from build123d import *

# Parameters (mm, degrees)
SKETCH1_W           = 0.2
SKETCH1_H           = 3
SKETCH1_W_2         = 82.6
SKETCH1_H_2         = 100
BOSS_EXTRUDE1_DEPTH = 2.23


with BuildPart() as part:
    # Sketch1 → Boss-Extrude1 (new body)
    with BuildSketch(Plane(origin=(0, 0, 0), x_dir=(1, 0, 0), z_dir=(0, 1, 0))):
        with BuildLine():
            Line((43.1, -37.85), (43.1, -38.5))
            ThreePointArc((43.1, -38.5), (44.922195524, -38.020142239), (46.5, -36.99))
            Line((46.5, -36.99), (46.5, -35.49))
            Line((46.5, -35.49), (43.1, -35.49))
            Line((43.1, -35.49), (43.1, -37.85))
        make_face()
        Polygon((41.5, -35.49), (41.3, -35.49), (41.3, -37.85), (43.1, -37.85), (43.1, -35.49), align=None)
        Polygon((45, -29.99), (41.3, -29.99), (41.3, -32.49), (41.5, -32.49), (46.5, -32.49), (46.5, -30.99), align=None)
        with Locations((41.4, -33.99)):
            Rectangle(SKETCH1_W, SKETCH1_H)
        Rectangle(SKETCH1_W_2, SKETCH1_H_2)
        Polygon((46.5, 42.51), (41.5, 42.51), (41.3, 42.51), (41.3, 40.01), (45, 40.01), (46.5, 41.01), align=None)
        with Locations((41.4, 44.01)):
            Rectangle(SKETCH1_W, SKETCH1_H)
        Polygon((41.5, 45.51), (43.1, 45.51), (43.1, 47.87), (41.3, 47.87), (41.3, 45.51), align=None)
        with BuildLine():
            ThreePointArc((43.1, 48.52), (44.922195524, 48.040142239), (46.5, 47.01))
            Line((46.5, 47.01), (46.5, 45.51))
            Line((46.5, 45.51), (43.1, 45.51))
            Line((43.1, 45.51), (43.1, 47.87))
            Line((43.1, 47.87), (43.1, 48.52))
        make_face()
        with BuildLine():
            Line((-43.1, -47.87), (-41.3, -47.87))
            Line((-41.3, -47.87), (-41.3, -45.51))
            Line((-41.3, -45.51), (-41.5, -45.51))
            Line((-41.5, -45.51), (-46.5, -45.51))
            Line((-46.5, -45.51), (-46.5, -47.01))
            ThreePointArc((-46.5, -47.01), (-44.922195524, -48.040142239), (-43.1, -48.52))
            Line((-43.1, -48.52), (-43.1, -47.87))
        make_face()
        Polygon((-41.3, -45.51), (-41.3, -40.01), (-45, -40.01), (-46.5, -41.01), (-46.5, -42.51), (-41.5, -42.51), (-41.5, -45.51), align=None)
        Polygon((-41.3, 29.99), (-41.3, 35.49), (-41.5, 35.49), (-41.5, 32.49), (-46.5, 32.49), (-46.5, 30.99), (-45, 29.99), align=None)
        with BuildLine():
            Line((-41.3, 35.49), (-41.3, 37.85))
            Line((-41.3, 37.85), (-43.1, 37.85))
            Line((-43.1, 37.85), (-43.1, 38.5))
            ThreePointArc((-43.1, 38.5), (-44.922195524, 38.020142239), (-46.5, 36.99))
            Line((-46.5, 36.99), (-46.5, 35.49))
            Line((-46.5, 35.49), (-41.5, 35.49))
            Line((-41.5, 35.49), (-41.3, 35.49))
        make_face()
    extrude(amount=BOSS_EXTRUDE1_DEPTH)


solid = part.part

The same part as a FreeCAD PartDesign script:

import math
import FreeCAD as App
import Part
import Sketcher

V = App.Vector
Q = App.Units.Quantity

doc = App.newDocument("Part")
body = doc.addObject("PartDesign::Body", "Body")

sketch1 = doc.addObject("Sketcher::SketchObject", "Sketch")
body.addObject(sketch1)
sketch1.AttachmentSupport = (doc.XZ_Plane, [""])
sketch1.MapMode = "FlatFace"
sketch1.addGeometry(Part.ArcOfCircle(Part.Circle(V(42.528668, 32.630742, 0), V(0, 0, 1), 5.897), math.radians(47.666133), math.radians(84.440164)), False)
sketch1.addGeometry(Part.LineSegment(V(46.5, 36.99, 0), V(46.5, 35.49, 0)), False)
sketch1.addGeometry(Part.LineSegment(V(46.5, 35.49, 0), V(41.5, 35.49, 0)), False)
sketch1.addGeometry(Part.LineSegment(V(41.5, 35.49, 0), V(41.5, 32.49, 0)), False)
sketch1.addGeometry(Part.LineSegment(V(41.5, 32.49, 0), V(46.5, 32.49, 0)), False)
sketch1.addGeometry(Part.LineSegment(V(46.5, 32.49, 0), V(46.5, 30.99, 0)), False)
sketch1.addGeometry(Part.LineSegment(V(46.5, 30.99, 0), V(45, 29.99, 0)), False)
sketch1.addGeometry(Part.LineSegment(V(45, 29.99, 0), V(41.3, 29.99, 0)), False)
sketch1.addGeometry(Part.LineSegment(V(41.3, 29.99, 0), V(41.3, -40.01, 0)), False)
sketch1.addGeometry(Part.LineSegment(V(41.3, -40.01, 0), V(45, -40.01, 0)), False)
sketch1.addGeometry(Part.LineSegment(V(45, -40.01, 0), V(46.5, -41.01, 0)), False)
sketch1.addGeometry(Part.LineSegment(V(46.5, -41.01, 0), V(46.5, -42.51, 0)), False)
sketch1.addGeometry(Part.LineSegment(V(46.5, -42.51, 0), V(41.5, -42.51, 0)), False)
sketch1.addGeometry(Part.LineSegment(V(41.5, -42.51, 0), V(41.5, -45.51, 0)), False)
sketch1.addGeometry(Part.LineSegment(V(41.5, -45.51, 0), V(46.5, -45.51, 0)), False)
sketch1.addGeometry(Part.LineSegment(V(46.5, -45.51, 0), V(46.5, -47.01, 0)), False)
sketch1.addGeometry(Part.ArcOfCircle(Part.Circle(V(42.528668, -42.650742, 0), V(0, 0, 1), 5.897), math.radians(-84.440164), math.radians(-47.666133)), False)
sketch1.addGeometry(Part.LineSegment(V(43.1, -48.52, 0), V(43.1, -47.87, 0)), False)
sketch1.addGeometry(Part.LineSegment(V(43.1, -47.87, 0), V(41.3, -47.87, 0)), False)
sketch1.addGeometry(Part.LineSegment(V(41.3, -47.87, 0), V(41.3, -50, 0)), False)
sketch1.addGeometry(Part.LineSegment(V(41.3, -50, 0), V(-41.3, -50, 0)), False)
sketch1.addGeometry(Part.LineSegment(V(-41.3, -50, 0), V(-41.3, -37.85, 0)), False)
sketch1.addGeometry(Part.LineSegment(V(-41.3, -37.85, 0), V(-43.1, -37.85, 0)), False)
sketch1.addGeometry(Part.LineSegment(V(-43.1, -37.85, 0), V(-43.1, -38.5, 0)), False)
sketch1.addGeometry(Part.ArcOfCircle(Part.Circle(V(-42.528668, -32.630742, 0), V(0, 0, 1), 5.897), math.radians(-132.333867), math.radians(-95.559836)), False)
sketch1.addGeometry(Part.LineSegment(V(-46.5, -36.99, 0), V(-46.5, -35.49, 0)), False)
sketch1.addGeometry(Part.LineSegment(V(-46.5, -35.49, 0), V(-41.5, -35.49, 0)), False)
sketch1.addGeometry(Part.LineSegment(V(-41.5, -35.49, 0), V(-41.5, -32.49, 0)), False)
sketch1.addGeometry(Part.LineSegment(V(-41.5, -32.49, 0), V(-46.5, -32.49, 0)), False)
sketch1.addGeometry(Part.LineSegment(V(-46.5, -32.49, 0), V(-46.5, -30.99, 0)), False)
sketch1.addGeometry(Part.LineSegment(V(-46.5, -30.99, 0), V(-45, -29.99, 0)), False)
sketch1.addGeometry(Part.LineSegment(V(-45, -29.99, 0), V(-41.3, -29.99, 0)), False)
sketch1.addGeometry(Part.LineSegment(V(-41.3, -29.99, 0), V(-41.3, 40.01, 0)), False)
sketch1.addGeometry(Part.LineSegment(V(-41.3, 40.01, 0), V(-45, 40.01, 0)), False)
sketch1.addGeometry(Part.LineSegment(V(-45, 40.01, 0), V(-46.5, 41.01, 0)), False)
sketch1.addGeometry(Part.LineSegment(V(-46.5, 41.01, 0), V(-46.5, 42.51, 0)), False)
sketch1.addGeometry(Part.LineSegment(V(-46.5, 42.51, 0), V(-41.5, 42.51, 0)), False)
sketch1.addGeometry(Part.LineSegment(V(-41.5, 42.51, 0), V(-41.5, 45.51, 0)), False)
sketch1.addGeometry(Part.LineSegment(V(-41.5, 45.51, 0), V(-46.5, 45.51, 0)), False)
sketch1.addGeometry(Part.LineSegment(V(-46.5, 45.51, 0), V(-46.5, 47.01, 0)), False)
sketch1.addGeometry(Part.ArcOfCircle(Part.Circle(V(-42.528668, 42.650742, 0), V(0, 0, 1), 5.897), math.radians(95.559836), math.radians(132.333867)), False)
sketch1.addGeometry(Part.LineSegment(V(-43.1, 48.52, 0), V(-43.1, 47.87, 0)), False)
sketch1.addGeometry(Part.LineSegment(V(-43.1, 47.87, 0), V(-41.3, 47.87, 0)), False)
sketch1.addGeometry(Part.LineSegment(V(-41.3, 47.87, 0), V(-41.3, 50, 0)), False)
sketch1.addGeometry(Part.LineSegment(V(-41.3, 50, 0), V(41.3, 50, 0)), False)
sketch1.addGeometry(Part.LineSegment(V(41.3, 50, 0), V(41.3, 37.85, 0)), False)
sketch1.addGeometry(Part.LineSegment(V(41.3, 37.85, 0), V(43.1, 37.85, 0)), False)
sketch1.addGeometry(Part.LineSegment(V(43.1, 37.85, 0), V(43.1, 38.5, 0)), False)
sketch1.addConstraint(Sketcher.Constraint("Coincident", 0, 1, 1, 1))
sketch1.addConstraint(Sketcher.Constraint("Coincident", 1, 2, 2, 1))
sketch1.addConstraint(Sketcher.Constraint("Coincident", 2, 2, 3, 1))
sketch1.addConstraint(Sketcher.Constraint("Coincident", 3, 2, 4, 1))
sketch1.addConstraint(Sketcher.Constraint("Coincident", 4, 2, 5, 1))
sketch1.addConstraint(Sketcher.Constraint("Coincident", 5, 2, 6, 1))
sketch1.addConstraint(Sketcher.Constraint("Coincident", 6, 2, 7, 1))
sketch1.addConstraint(Sketcher.Constraint("Coincident", 7, 2, 8, 1))
sketch1.addConstraint(Sketcher.Constraint("Coincident", 8, 2, 9, 1))
sketch1.addConstraint(Sketcher.Constraint("Coincident", 9, 2, 10, 1))
sketch1.addConstraint(Sketcher.Constraint("Coincident", 10, 2, 11, 1))
sketch1.addConstraint(Sketcher.Constraint("Coincident", 11, 2, 12, 1))
sketch1.addConstraint(Sketcher.Constraint("Coincident", 12, 2, 13, 1))
sketch1.addConstraint(Sketcher.Constraint("Coincident", 13, 2, 14, 1))
sketch1.addConstraint(Sketcher.Constraint("Coincident", 14, 2, 15, 1))
sketch1.addConstraint(Sketcher.Constraint("Coincident", 15, 2, 16, 2))
sketch1.addConstraint(Sketcher.Constraint("Coincident", 16, 1, 17, 1))
sketch1.addConstraint(Sketcher.Constraint("Coincident", 17, 2, 18, 1))
sketch1.addConstraint(Sketcher.Constraint("Coincident", 18, 2, 19, 1))
sketch1.addConstraint(Sketcher.Constraint("Coincident", 19, 2, 20, 1))
sketch1.addConstraint(Sketcher.Constraint("Coincident", 20, 2, 21, 1))
sketch1.addConstraint(Sketcher.Constraint("Coincident", 21, 2, 22, 1))
sketch1.addConstraint(Sketcher.Constraint("Coincident", 22, 2, 23, 1))
sketch1.addConstraint(Sketcher.Constraint("Coincident", 23, 2, 24, 2))
sketch1.addConstraint(Sketcher.Constraint("Coincident", 24, 1, 25, 1))
sketch1.addConstraint(Sketcher.Constraint("Coincident", 25, 2, 26, 1))
sketch1.addConstraint(Sketcher.Constraint("Coincident", 26, 2, 27, 1))
sketch1.addConstraint(Sketcher.Constraint("Coincident", 27, 2, 28, 1))
sketch1.addConstraint(Sketcher.Constraint("Coincident", 28, 2, 29, 1))
sketch1.addConstraint(Sketcher.Constraint("Coincident", 29, 2, 30, 1))
sketch1.addConstraint(Sketcher.Constraint("Coincident", 30, 2, 31, 1))
sketch1.addConstraint(Sketcher.Constraint("Coincident", 31, 2, 32, 1))
sketch1.addConstraint(Sketcher.Constraint("Coincident", 32, 2, 33, 1))
sketch1.addConstraint(Sketcher.Constraint("Coincident", 33, 2, 34, 1))
sketch1.addConstraint(Sketcher.Constraint("Coincident", 34, 2, 35, 1))
sketch1.addConstraint(Sketcher.Constraint("Coincident", 35, 2, 36, 1))
sketch1.addConstraint(Sketcher.Constraint("Coincident", 36, 2, 37, 1))
sketch1.addConstraint(Sketcher.Constraint("Coincident", 37, 2, 38, 1))
sketch1.addConstraint(Sketcher.Constraint("Coincident", 38, 2, 39, 1))
sketch1.addConstraint(Sketcher.Constraint("Coincident", 39, 2, 40, 2))
sketch1.addConstraint(Sketcher.Constraint("Coincident", 40, 1, 41, 1))
sketch1.addConstraint(Sketcher.Constraint("Coincident", 41, 2, 42, 1))
sketch1.addConstraint(Sketcher.Constraint("Coincident", 42, 2, 43, 1))
sketch1.addConstraint(Sketcher.Constraint("Coincident", 43, 2, 44, 1))
sketch1.addConstraint(Sketcher.Constraint("Coincident", 44, 2, 45, 1))
sketch1.addConstraint(Sketcher.Constraint("Coincident", 45, 2, 46, 1))
sketch1.addConstraint(Sketcher.Constraint("Coincident", 46, 2, 47, 1))
sketch1.addConstraint(Sketcher.Constraint("Coincident", 47, 2, 0, 2))
sketch1.addConstraint(Sketcher.Constraint("Vertical", 1))
sketch1.addConstraint(Sketcher.Constraint("Horizontal", 2))
sketch1.addConstraint(Sketcher.Constraint("Vertical", 3))
sketch1.addConstraint(Sketcher.Constraint("Horizontal", 4))
sketch1.addConstraint(Sketcher.Constraint("Vertical", 5))
sketch1.addConstraint(Sketcher.Constraint("Horizontal", 7))
sketch1.addConstraint(Sketcher.Constraint("Vertical", 8))
sketch1.addConstraint(Sketcher.Constraint("Horizontal", 9))
sketch1.addConstraint(Sketcher.Constraint("Vertical", 11))
sketch1.addConstraint(Sketcher.Constraint("Horizontal", 12))
sketch1.addConstraint(Sketcher.Constraint("Vertical", 13))
sketch1.addConstraint(Sketcher.Constraint("Horizontal", 14))
sketch1.addConstraint(Sketcher.Constraint("Vertical", 15))
sketch1.addConstraint(Sketcher.Constraint("Vertical", 17))
sketch1.addConstraint(Sketcher.Constraint("Horizontal", 18))
sketch1.addConstraint(Sketcher.Constraint("Vertical", 19))
sketch1.addConstraint(Sketcher.Constraint("Horizontal", 20))
sketch1.addConstraint(Sketcher.Constraint("Vertical", 21))
sketch1.addConstraint(Sketcher.Constraint("Horizontal", 22))
sketch1.addConstraint(Sketcher.Constraint("Vertical", 23))
sketch1.addConstraint(Sketcher.Constraint("Vertical", 25))
sketch1.addConstraint(Sketcher.Constraint("Horizontal", 26))
sketch1.addConstraint(Sketcher.Constraint("Vertical", 27))
sketch1.addConstraint(Sketcher.Constraint("Horizontal", 28))
sketch1.addConstraint(Sketcher.Constraint("Vertical", 29))
sketch1.addConstraint(Sketcher.Constraint("Horizontal", 31))
sketch1.addConstraint(Sketcher.Constraint("Vertical", 32))
sketch1.addConstraint(Sketcher.Constraint("Horizontal", 33))
sketch1.addConstraint(Sketcher.Constraint("Vertical", 35))
sketch1.addConstraint(Sketcher.Constraint("Horizontal", 36))
sketch1.addConstraint(Sketcher.Constraint("Vertical", 37))
sketch1.addConstraint(Sketcher.Constraint("Horizontal", 38))
sketch1.addConstraint(Sketcher.Constraint("Vertical", 39))
sketch1.addConstraint(Sketcher.Constraint("Vertical", 41))
sketch1.addConstraint(Sketcher.Constraint("Horizontal", 42))
sketch1.addConstraint(Sketcher.Constraint("Vertical", 43))
sketch1.addConstraint(Sketcher.Constraint("Horizontal", 44))
sketch1.addConstraint(Sketcher.Constraint("Vertical", 45))
sketch1.addConstraint(Sketcher.Constraint("Horizontal", 46))
sketch1.addConstraint(Sketcher.Constraint("Vertical", 47))
sketch1.addConstraint(Sketcher.Constraint("Equal", 0, 16))
sketch1.addConstraint(Sketcher.Constraint("Equal", 16, 24))
sketch1.addConstraint(Sketcher.Constraint("Equal", 24, 40))
sketch1.addConstraint(Sketcher.Constraint("Symmetric", 0, 3, 24, 3, -1, 1))
sketch1.addConstraint(Sketcher.Constraint("Symmetric", 16, 3, 40, 3, -1, 1))
sketch1.addConstraint(Sketcher.Constraint("Symmetric", 1, 2, 25, 2, -1, 1))
sketch1.addConstraint(Sketcher.Constraint("Symmetric", 3, 2, 27, 2, -1, 1))
sketch1.addConstraint(Sketcher.Constraint("Symmetric", 5, 2, 29, 2, -1, 1))
sketch1.addConstraint(Sketcher.Constraint("Symmetric", 6, 2, 30, 2, -1, 1))
sketch1.addConstraint(Sketcher.Constraint("Symmetric", 8, 2, 32, 2, -1, 1))
sketch1.addConstraint(Sketcher.Constraint("Symmetric", 10, 2, 34, 2, -1, 1))
sketch1.addConstraint(Sketcher.Constraint("Symmetric", 12, 2, 36, 2, -1, 1))
sketch1.addConstraint(Sketcher.Constraint("Symmetric", 14, 2, 38, 2, -1, 1))
sketch1.addConstraint(Sketcher.Constraint("Symmetric", 17, 2, 41, 2, -1, 1))
sketch1.addConstraint(Sketcher.Constraint("Symmetric", 19, 2, 43, 2, -1, 1))
sketch1.addConstraint(Sketcher.Constraint("Symmetric", 21, 2, 45, 2, -1, 1))
sketch1.addConstraint(Sketcher.Constraint("Parallel", 10, 34))
sketch1.addConstraint(Sketcher.Constraint("Vertical", 0, 3, 16, 3))
sketch1.addConstraint(Sketcher.Constraint("Vertical", 1, 2, 4, 2))
sketch1.addConstraint(Sketcher.Constraint("Vertical", 6, 2, 9, 2))
sketch1.addConstraint(Sketcher.Constraint("Vertical", 5, 2, 10, 2))
sketch1.addConstraint(Sketcher.Constraint("Vertical", 3, 2, 12, 2))
sketch1.addConstraint(Sketcher.Constraint("Vertical", 11, 2, 14, 2))
sketch1.addConstraint(Sketcher.Constraint("Vertical", 8, 2, 18, 2))
sketch1.addConstraint(Sketcher.Constraint("Vertical", 21, 2, 31, 2))
sketch1.addConstraint(Sketcher.Constraint("Vertical", 23, 2, 40, 1))
sketch1.addConstraint(Sketcher.Constraint("Vertical", 17, 2, 46, 2))
sketch1.addConstraint(Sketcher.Constraint("Equal", 1, 5))
sketch1.addConstraint(Sketcher.Constraint("Equal", 5, 11))
sketch1.addConstraint(Sketcher.Constraint("Equal", 3, 13))
sketch1.addConstraint(Sketcher.Constraint("Equal", 11, 15))
sketch1.addConstraint(Sketcher.Constraint("Equal", 17, 23))
sketch1.addConstraint(Sketcher.Constraint("Equal", 6, 10))
sketch1.addConstraint(Sketcher.Constraint("DistanceX", 2, 2, 2, 1, Q("5 mm")))
sketch1.addConstraint(Sketcher.Constraint("DistanceY", 3, 2, 3, 1, Q("3 mm")))
sketch1.addConstraint(Sketcher.Constraint("DistanceY", 8, 2, 8, 1, Q("70 mm")))
sketch1.addConstraint(Sketcher.Constraint("DistanceX", 7, 2, 7, 1, Q("3.7 mm")))
sketch1.addConstraint(Sketcher.Constraint("DistanceX", 18, 2, 18, 1, Q("1.8 mm")))
sketch1.addConstraint(Sketcher.Constraint("DistanceX", 20, 2, 20, 1, Q("82.6 mm")))
sketch1.addConstraint(Sketcher.Constraint("DistanceY", 1, 2, 1, 1, Q("1.5 mm")))
sketch1.addConstraint(Sketcher.Constraint("DistanceY", 19, 2, -1, 1, Q("50 mm")))
sketch1.addConstraint(Sketcher.Constraint("Radius", 0, Q("5.897 mm")))
sketch1.addConstraint(Sketcher.Constraint("DistanceY", 6, 2, 5, 2, Q("1 mm")))
sketch1.addConstraint(Sketcher.Constraint("DistanceY", 17, 1, 17, 2, Q("0.65 mm")))
sketch1.addConstraint(Sketcher.Constraint("DistanceY", 19, 2, 19, 1, Q("2.13 mm")))
sketch1.addConstraint(Sketcher.Constraint("DistanceY", 21, 1, 21, 2, Q("12.15 mm")))
sketch1.addConstraint(Sketcher.Constraint("DistanceX", -1, 1, 0, 1, Q("46.5 mm")))
pad1 = doc.addObject("PartDesign::Pad", "Pad")
body.addObject(pad1)
pad1.Profile = sketch1
pad1.Length = 2.23
pad1.Reversed = True

doc.recompute()
